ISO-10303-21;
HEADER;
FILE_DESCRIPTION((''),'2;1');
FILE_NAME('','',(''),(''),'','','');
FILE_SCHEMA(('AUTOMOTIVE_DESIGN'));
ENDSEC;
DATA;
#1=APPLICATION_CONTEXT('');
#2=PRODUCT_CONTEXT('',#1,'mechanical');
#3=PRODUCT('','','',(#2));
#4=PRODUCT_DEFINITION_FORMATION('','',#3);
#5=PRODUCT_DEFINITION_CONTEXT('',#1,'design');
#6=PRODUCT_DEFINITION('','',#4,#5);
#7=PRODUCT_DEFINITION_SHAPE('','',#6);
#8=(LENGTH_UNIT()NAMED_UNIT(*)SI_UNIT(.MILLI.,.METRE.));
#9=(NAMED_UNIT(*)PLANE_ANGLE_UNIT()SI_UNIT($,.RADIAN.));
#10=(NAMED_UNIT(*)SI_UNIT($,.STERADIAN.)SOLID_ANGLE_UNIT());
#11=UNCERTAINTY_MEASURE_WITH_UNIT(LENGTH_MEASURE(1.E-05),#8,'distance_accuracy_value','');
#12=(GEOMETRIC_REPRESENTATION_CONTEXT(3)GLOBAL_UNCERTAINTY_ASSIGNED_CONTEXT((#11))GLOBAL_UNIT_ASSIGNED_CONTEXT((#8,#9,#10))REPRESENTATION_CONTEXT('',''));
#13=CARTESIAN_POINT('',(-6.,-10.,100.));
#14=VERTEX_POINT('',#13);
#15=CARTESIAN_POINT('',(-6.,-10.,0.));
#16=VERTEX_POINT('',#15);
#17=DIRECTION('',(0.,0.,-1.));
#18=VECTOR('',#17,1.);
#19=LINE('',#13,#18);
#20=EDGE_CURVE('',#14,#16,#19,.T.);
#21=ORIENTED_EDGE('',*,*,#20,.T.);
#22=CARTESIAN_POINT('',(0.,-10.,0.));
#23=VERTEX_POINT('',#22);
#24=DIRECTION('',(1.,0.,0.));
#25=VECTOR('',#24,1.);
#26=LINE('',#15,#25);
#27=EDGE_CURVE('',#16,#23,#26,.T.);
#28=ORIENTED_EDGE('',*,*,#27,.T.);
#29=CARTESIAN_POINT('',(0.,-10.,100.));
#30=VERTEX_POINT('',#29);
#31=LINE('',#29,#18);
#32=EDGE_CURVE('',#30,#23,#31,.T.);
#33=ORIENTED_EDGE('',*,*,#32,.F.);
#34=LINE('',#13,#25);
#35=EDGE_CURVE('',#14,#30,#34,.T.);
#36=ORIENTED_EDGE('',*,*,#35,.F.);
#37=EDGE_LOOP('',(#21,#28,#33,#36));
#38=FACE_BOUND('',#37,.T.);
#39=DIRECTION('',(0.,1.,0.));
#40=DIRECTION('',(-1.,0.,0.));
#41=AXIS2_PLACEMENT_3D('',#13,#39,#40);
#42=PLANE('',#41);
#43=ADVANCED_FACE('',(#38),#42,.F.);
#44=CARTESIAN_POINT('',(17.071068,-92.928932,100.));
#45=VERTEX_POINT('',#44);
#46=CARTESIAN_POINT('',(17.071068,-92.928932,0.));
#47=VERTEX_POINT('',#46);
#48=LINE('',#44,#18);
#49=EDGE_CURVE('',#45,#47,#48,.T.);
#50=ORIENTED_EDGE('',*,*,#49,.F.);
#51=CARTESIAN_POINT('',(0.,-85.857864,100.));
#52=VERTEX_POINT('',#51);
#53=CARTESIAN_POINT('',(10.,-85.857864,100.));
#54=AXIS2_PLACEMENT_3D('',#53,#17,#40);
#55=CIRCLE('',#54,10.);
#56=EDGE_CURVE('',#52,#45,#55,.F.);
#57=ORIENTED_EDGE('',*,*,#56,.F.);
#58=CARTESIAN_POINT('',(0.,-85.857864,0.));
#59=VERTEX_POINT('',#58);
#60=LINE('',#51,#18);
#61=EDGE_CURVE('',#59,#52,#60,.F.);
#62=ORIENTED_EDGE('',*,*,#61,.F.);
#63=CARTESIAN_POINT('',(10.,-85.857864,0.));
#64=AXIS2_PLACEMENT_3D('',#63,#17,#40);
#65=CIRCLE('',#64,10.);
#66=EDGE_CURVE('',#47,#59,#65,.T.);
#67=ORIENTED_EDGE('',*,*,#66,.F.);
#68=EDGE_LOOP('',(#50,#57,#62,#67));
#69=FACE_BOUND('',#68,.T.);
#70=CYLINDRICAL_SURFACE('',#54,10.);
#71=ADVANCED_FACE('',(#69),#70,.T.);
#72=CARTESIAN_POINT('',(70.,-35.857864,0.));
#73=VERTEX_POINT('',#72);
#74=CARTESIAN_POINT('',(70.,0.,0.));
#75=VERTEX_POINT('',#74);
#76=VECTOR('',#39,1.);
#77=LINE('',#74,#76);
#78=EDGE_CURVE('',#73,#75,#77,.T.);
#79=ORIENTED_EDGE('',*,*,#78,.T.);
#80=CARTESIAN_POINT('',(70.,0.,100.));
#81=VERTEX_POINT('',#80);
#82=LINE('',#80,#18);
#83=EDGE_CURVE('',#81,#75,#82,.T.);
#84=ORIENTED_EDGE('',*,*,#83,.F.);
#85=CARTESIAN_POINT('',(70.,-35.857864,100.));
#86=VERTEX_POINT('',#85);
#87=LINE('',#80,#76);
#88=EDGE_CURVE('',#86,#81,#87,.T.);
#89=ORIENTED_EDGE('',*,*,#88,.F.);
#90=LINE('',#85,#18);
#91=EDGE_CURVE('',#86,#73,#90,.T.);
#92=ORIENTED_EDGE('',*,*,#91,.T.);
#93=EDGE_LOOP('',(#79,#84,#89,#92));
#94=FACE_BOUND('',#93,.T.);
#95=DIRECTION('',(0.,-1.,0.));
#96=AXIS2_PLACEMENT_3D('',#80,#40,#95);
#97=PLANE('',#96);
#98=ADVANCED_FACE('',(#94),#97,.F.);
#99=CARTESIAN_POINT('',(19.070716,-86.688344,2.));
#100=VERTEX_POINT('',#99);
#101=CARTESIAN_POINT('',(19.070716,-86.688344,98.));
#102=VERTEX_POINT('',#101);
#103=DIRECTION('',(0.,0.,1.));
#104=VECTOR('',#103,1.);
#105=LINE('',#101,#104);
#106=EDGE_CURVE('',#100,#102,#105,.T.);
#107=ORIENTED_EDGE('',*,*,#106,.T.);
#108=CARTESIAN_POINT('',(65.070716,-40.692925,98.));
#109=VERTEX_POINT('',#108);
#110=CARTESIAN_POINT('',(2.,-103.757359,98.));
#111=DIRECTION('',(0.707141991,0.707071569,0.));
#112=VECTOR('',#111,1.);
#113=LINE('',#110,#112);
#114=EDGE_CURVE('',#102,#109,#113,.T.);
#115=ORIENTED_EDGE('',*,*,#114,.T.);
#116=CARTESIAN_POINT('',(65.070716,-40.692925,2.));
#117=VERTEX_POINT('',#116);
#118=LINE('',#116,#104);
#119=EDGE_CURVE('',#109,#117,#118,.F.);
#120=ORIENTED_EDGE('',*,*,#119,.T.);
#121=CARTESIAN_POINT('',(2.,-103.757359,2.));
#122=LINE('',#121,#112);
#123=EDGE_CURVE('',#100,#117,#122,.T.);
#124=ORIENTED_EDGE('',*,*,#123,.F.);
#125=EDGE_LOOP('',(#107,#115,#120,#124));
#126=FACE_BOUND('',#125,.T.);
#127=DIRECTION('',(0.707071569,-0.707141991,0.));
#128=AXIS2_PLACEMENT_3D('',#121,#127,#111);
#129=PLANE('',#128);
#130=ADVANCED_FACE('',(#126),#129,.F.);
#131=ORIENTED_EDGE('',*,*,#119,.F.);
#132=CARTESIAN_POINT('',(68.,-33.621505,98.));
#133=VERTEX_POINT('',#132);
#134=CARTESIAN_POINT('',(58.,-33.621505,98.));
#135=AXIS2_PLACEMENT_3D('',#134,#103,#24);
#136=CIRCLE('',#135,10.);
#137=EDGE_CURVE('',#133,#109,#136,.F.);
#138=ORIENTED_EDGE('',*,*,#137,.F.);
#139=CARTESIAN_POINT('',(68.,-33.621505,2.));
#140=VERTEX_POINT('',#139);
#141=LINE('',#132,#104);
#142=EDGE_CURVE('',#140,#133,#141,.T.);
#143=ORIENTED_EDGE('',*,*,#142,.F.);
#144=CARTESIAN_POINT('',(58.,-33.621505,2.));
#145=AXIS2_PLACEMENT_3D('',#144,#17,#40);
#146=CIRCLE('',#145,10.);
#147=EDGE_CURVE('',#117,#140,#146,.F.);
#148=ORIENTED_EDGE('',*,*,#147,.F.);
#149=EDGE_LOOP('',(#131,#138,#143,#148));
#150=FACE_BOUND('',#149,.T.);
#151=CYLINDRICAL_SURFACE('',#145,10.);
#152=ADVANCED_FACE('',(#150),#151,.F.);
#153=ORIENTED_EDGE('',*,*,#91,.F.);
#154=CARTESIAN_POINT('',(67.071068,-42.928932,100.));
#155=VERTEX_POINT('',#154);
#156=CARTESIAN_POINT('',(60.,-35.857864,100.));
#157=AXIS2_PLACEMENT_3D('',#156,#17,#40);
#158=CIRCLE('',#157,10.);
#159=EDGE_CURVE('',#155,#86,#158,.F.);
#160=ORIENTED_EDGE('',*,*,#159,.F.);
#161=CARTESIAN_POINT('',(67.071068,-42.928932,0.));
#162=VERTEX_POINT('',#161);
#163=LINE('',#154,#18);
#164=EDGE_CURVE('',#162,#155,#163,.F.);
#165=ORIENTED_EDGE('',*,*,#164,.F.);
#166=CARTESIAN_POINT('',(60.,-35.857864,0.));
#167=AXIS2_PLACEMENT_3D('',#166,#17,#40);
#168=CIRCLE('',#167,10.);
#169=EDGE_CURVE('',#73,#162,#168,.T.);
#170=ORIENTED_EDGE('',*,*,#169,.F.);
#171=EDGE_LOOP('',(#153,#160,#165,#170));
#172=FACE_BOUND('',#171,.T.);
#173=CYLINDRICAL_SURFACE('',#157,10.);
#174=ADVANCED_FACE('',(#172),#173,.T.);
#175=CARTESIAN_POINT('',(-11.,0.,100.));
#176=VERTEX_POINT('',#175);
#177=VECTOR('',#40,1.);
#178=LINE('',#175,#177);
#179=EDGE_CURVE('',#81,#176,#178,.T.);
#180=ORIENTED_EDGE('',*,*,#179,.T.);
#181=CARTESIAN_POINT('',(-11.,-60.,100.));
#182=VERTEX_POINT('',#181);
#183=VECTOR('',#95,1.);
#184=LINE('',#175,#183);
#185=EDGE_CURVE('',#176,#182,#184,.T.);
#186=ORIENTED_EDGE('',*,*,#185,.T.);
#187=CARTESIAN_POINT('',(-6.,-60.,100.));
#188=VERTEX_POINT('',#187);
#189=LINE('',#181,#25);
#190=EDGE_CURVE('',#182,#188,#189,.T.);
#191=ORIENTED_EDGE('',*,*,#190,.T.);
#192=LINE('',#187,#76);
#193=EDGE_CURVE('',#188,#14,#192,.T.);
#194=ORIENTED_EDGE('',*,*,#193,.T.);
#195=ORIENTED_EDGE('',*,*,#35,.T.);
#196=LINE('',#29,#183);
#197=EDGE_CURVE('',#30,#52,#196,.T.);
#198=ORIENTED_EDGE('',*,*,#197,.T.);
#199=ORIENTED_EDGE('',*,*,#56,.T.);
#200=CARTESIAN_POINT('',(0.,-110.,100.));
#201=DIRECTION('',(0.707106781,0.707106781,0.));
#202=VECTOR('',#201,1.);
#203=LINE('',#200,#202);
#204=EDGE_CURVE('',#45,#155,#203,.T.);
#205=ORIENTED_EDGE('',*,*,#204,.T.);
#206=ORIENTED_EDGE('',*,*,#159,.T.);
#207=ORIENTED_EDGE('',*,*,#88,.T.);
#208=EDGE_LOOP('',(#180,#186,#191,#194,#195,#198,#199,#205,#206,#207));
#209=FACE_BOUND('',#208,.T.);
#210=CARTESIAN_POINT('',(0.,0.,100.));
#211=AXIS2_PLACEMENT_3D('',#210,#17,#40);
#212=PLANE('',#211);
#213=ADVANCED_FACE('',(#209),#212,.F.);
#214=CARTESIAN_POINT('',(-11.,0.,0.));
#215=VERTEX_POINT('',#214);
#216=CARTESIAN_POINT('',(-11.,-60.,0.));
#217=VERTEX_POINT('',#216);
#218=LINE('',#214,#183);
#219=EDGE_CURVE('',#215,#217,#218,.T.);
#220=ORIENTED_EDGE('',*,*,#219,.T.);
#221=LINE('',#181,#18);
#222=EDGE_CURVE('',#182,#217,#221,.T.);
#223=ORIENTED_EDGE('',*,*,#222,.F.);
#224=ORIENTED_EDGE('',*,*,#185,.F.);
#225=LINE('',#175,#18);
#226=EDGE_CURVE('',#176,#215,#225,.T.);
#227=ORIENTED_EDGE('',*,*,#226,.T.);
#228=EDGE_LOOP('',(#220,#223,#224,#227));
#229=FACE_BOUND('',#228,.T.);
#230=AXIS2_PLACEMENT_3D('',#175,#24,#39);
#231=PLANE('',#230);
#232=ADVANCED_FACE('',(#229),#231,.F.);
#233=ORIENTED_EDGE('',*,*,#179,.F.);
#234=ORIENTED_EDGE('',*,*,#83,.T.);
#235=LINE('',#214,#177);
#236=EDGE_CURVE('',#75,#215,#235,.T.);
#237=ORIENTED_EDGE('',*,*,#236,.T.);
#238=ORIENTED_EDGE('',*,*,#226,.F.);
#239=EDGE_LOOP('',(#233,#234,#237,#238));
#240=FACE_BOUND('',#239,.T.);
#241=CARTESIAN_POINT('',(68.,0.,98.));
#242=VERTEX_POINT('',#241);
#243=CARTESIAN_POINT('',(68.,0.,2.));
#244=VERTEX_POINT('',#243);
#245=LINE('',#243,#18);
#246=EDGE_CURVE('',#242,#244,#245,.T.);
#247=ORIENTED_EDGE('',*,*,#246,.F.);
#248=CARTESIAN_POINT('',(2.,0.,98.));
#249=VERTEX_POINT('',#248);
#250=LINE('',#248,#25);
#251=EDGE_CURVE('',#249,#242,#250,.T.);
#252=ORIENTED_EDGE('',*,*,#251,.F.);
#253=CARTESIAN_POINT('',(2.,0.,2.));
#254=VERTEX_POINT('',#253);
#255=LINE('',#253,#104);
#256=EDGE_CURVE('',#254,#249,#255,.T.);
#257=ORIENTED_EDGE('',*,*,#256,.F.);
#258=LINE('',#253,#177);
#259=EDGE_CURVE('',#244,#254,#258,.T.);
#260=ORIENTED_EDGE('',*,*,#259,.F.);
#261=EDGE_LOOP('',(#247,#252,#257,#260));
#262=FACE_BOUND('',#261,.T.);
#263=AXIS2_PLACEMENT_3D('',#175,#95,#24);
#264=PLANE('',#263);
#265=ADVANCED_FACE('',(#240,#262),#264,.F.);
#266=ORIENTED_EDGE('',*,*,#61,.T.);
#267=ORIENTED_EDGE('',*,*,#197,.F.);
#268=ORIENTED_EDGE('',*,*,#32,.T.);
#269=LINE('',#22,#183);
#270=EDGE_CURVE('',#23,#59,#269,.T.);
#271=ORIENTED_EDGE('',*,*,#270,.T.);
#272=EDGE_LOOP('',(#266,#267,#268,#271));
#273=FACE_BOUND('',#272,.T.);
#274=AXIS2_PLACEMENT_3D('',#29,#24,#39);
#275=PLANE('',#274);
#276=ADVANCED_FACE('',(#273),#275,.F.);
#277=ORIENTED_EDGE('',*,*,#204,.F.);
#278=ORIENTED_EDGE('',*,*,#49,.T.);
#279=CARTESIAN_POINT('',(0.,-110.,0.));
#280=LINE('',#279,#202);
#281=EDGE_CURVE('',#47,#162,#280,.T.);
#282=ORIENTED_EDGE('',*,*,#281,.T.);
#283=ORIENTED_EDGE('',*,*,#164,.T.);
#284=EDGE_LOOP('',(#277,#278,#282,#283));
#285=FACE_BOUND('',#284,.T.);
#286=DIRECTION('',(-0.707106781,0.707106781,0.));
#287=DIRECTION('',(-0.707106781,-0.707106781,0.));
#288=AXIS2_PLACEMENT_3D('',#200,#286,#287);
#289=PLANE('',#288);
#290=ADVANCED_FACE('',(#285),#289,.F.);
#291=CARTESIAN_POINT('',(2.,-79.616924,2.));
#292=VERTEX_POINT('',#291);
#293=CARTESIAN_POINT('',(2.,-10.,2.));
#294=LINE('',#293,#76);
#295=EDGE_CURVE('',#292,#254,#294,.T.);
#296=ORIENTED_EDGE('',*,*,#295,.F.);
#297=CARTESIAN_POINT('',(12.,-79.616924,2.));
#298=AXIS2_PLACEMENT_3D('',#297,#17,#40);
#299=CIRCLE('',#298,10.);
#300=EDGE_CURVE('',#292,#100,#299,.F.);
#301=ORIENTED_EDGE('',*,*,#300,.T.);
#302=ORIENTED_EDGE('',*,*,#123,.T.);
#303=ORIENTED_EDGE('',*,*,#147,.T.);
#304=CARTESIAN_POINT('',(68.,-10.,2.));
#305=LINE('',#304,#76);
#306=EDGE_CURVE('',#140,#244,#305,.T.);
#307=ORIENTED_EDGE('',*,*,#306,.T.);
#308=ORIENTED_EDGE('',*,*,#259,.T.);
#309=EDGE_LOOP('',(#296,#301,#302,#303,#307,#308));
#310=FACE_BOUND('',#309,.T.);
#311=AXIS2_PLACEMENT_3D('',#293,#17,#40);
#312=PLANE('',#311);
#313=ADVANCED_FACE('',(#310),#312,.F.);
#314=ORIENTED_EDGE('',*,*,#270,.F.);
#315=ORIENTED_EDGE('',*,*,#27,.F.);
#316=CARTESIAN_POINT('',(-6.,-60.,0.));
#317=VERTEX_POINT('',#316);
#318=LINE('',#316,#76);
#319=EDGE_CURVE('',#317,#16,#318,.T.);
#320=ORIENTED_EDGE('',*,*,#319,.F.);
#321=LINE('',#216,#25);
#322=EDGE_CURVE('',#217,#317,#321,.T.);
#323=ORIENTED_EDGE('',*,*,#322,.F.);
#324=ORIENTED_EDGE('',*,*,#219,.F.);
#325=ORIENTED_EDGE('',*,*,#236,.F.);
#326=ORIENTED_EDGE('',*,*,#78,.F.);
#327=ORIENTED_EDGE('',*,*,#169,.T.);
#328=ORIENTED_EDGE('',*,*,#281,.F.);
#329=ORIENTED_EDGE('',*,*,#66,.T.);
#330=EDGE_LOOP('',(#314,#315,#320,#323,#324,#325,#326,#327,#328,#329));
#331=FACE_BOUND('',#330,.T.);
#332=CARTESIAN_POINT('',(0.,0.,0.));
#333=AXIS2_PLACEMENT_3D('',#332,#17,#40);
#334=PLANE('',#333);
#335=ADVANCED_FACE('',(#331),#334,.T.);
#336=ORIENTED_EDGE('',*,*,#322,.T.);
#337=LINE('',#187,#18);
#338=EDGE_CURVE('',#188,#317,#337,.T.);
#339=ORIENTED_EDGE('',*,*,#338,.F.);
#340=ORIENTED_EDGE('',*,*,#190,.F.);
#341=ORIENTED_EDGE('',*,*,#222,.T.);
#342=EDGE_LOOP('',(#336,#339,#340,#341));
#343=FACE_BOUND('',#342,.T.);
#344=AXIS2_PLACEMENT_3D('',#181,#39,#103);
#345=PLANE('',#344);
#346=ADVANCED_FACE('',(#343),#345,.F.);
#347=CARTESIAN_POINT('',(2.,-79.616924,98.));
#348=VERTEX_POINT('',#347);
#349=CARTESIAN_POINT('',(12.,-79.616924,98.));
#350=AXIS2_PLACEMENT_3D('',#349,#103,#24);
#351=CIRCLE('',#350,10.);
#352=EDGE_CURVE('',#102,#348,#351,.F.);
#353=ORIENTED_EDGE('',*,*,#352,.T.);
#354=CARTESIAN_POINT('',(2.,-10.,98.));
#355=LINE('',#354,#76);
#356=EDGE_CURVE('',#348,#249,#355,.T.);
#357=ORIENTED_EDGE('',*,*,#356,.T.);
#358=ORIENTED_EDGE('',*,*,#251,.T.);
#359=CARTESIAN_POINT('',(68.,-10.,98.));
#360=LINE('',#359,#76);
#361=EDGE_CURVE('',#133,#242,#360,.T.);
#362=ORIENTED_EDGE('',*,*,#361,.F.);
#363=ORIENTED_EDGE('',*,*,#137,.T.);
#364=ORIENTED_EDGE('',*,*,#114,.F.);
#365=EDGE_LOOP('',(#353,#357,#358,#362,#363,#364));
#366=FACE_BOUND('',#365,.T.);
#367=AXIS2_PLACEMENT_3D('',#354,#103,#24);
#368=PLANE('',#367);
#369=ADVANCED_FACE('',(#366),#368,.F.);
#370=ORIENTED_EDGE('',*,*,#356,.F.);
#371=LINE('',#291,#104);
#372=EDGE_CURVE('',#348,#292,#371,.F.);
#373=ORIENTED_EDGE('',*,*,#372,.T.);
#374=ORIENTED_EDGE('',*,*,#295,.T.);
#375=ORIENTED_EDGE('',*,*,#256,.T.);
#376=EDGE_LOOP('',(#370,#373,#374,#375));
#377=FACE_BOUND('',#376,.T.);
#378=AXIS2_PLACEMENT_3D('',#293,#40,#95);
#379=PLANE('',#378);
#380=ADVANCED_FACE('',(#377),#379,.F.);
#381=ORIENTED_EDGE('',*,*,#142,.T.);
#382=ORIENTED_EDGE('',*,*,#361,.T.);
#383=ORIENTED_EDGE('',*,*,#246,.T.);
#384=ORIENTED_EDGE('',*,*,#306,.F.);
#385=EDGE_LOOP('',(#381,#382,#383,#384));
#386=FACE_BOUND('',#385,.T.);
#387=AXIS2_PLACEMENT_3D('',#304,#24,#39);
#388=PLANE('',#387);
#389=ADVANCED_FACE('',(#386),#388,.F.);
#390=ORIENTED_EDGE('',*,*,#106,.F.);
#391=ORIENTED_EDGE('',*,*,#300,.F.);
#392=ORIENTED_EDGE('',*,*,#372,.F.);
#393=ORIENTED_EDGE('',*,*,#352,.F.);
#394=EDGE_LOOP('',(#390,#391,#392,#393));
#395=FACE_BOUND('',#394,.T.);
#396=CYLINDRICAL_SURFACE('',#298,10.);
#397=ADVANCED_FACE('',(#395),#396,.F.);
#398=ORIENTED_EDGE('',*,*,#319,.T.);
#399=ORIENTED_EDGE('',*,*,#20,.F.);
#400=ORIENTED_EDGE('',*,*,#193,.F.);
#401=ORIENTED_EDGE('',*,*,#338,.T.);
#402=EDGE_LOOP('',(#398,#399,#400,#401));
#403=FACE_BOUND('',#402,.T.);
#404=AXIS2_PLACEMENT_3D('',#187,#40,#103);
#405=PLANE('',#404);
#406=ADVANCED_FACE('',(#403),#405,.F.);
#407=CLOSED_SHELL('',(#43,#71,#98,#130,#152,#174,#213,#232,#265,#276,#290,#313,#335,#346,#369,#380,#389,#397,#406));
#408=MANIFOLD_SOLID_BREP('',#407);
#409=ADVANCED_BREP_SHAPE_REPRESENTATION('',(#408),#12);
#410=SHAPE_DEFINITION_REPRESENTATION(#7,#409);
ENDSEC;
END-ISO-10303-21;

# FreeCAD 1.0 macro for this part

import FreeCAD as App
import Part
import Sketcher
from FreeCAD import Vector
Q = App.Units.Quantity


def edges_at(feature, points):
    """Names of the edges that pass closest to the given points."""
    edges = feature.Shape.Edges
    near = lambda p: min(range(len(edges)), key=lambda i: edges[i].distToShape(Part.Vertex(*p))[0])
    return sorted({f"Edge{near(p) + 1}" for p in points})


def add_polygon(sketch, points):
    """Adds a closed chain of lines whose ends are joined by coincident constraints."""
    first, n = sketch.GeometryCount, len(points)
    for a, b in zip(points, points[1:] + points[:1]):
        sketch.addGeometry(Part.LineSegment(App.Vector(*a, 0), App.Vector(*b, 0)), False)
    for i in range(n):
        sketch.addConstraint(Sketcher.Constraint("Coincident", first + i, 2, first + (i + 1) % n, 1))

doc = App.newDocument("Part")
body = doc.addObject("PartDesign::Body", "Body")

sketch1 = doc.addObject("Sketcher::SketchObject", "Sketch")
body.addObject(sketch1)
sketch1.AttachmentSupport = (doc.XY_Plane, [""])
sketch1.MapMode = "FlatFace"
add_polygon(sketch1, [(-11, 0), (-11, -60), (-6, -60), (-6, -10), (0, -10), (0, -110), (70, -40), (70, 0)])
sketch1.addConstraint([
    Sketcher.Constraint("Vertical", 0),
    Sketcher.Constraint("Horizontal", 1),
    Sketcher.Constraint("Vertical", 2),
    Sketcher.Constraint("Horizontal", 3),
    Sketcher.Constraint("Vertical", 4),
    Sketcher.Constraint("Vertical", 6),
    Sketcher.Constraint("Horizontal", 7),
    Sketcher.Constraint("PointOnObject", 3, 2, -2),
    Sketcher.Constraint("PointOnObject", 6, 2, -1),
    Sketcher.Constraint("DistanceX", 1, 1, 1, 2, Q("5 mm")),
    Sketcher.Constraint("DistanceX", 3, 1, 3, 2, Q("6 mm")),
    Sketcher.Constraint("DistanceX", 7, 2, 7, 1, Q("81 mm")),
    Sketcher.Constraint("DistanceY", 0, 2, 0, 1, Q("60 mm")),
    Sketcher.Constraint("DistanceY", 2, 1, 2, 2, Q("50 mm")),
    Sketcher.Constraint("DistanceY", 4, 2, 4, 1, Q("100 mm")),
    Sketcher.Constraint("DistanceY", 6, 1, 6, 2, Q("40 mm")),
])
pad1 = doc.addObject("PartDesign::Pad", "Pad")
body.addObject(pad1)
pad1.Profile = sketch1
pad1.Length = 100

sketch2 = doc.addObject("Sketcher::SketchObject", "Sketch001")
body.addObject(sketch2)
sketch2.AttachmentSupport = (doc.XZ_Plane, [""])
sketch2.MapMode = "FlatFace"
add_polygon(sketch2, [(2, 2), (2, 98), (68, 98), (68, 2)])
sketch2.addConstraint([
    Sketcher.Constraint("Vertical", 0),
    Sketcher.Constraint("Horizontal", 1),
    Sketcher.Constraint("Vertical", 2),
    Sketcher.Constraint("Horizontal", 3),
    Sketcher.Constraint("DistanceX", 1, 1, 1, 2, Q("66 mm")),
    Sketcher.Constraint("DistanceY", 0, 1, 0, 2, Q("96 mm")),
    Sketcher.Constraint("DistanceX", -1, 1, 0, 2, Q("2 mm")),
    Sketcher.Constraint("DistanceY", -1, 1, 0, 2, Q("98 mm")),
])
pocket1 = doc.addObject("PartDesign::Pocket", "Pocket")
body.addObject(pocket1)
pocket1.Profile = sketch2
pocket1.Length = 10
pocket1.Reversed = True

sketch3 = doc.addObject("Sketcher::SketchObject", "Sketch002")
body.addObject(sketch3)
sketch3.AttachmentSupport = (doc.XY_Plane, [""])
sketch3.MapMode = "FlatFace"
sketch3.AttachmentOffset = App.Placement(Vector(0, 0, 98), App.Rotation())
add_polygon(sketch3, [(2, 0), (2, -104), (68, -38), (68, 0)])
sketch3.addConstraint([
    Sketcher.Constraint("Vertical", 0),
    Sketcher.Constraint("Vertical", 2),
    Sketcher.Constraint("Horizontal", 3),
    Sketcher.Constraint("PointOnObject", 2, 2, -1),
    Sketcher.Constraint("DistanceX", 3, 2, 3, 1, Q("66 mm")),
    Sketcher.Constraint("DistanceX", -1, 1, 0, 2, Q("2 mm")),
    Sketcher.Constraint("DistanceY", 0, 2, 0, 1, Q("103.757359 mm")),
    Sketcher.Constraint("DistanceY", 2, 1, 2, 2, Q("37.763932 mm")),
])
pocket2 = doc.addObject("PartDesign::Pocket", "Pocket001")
body.addObject(pocket2)
pocket2.Profile = sketch3
pocket2.Length = 96
doc.recompute()

fillet = doc.addObject("PartDesign::Fillet", "Fillet")
body.addObject(fillet)
fillet.Base = (pocket2, edges_at(pocket2, [
    (70, -40, 50),
    (0, -110, 50),
    (68, -37.764, 50),
    (2, -103.757, 50),
]))
fillet.Radius = 10

doc.recompute()
